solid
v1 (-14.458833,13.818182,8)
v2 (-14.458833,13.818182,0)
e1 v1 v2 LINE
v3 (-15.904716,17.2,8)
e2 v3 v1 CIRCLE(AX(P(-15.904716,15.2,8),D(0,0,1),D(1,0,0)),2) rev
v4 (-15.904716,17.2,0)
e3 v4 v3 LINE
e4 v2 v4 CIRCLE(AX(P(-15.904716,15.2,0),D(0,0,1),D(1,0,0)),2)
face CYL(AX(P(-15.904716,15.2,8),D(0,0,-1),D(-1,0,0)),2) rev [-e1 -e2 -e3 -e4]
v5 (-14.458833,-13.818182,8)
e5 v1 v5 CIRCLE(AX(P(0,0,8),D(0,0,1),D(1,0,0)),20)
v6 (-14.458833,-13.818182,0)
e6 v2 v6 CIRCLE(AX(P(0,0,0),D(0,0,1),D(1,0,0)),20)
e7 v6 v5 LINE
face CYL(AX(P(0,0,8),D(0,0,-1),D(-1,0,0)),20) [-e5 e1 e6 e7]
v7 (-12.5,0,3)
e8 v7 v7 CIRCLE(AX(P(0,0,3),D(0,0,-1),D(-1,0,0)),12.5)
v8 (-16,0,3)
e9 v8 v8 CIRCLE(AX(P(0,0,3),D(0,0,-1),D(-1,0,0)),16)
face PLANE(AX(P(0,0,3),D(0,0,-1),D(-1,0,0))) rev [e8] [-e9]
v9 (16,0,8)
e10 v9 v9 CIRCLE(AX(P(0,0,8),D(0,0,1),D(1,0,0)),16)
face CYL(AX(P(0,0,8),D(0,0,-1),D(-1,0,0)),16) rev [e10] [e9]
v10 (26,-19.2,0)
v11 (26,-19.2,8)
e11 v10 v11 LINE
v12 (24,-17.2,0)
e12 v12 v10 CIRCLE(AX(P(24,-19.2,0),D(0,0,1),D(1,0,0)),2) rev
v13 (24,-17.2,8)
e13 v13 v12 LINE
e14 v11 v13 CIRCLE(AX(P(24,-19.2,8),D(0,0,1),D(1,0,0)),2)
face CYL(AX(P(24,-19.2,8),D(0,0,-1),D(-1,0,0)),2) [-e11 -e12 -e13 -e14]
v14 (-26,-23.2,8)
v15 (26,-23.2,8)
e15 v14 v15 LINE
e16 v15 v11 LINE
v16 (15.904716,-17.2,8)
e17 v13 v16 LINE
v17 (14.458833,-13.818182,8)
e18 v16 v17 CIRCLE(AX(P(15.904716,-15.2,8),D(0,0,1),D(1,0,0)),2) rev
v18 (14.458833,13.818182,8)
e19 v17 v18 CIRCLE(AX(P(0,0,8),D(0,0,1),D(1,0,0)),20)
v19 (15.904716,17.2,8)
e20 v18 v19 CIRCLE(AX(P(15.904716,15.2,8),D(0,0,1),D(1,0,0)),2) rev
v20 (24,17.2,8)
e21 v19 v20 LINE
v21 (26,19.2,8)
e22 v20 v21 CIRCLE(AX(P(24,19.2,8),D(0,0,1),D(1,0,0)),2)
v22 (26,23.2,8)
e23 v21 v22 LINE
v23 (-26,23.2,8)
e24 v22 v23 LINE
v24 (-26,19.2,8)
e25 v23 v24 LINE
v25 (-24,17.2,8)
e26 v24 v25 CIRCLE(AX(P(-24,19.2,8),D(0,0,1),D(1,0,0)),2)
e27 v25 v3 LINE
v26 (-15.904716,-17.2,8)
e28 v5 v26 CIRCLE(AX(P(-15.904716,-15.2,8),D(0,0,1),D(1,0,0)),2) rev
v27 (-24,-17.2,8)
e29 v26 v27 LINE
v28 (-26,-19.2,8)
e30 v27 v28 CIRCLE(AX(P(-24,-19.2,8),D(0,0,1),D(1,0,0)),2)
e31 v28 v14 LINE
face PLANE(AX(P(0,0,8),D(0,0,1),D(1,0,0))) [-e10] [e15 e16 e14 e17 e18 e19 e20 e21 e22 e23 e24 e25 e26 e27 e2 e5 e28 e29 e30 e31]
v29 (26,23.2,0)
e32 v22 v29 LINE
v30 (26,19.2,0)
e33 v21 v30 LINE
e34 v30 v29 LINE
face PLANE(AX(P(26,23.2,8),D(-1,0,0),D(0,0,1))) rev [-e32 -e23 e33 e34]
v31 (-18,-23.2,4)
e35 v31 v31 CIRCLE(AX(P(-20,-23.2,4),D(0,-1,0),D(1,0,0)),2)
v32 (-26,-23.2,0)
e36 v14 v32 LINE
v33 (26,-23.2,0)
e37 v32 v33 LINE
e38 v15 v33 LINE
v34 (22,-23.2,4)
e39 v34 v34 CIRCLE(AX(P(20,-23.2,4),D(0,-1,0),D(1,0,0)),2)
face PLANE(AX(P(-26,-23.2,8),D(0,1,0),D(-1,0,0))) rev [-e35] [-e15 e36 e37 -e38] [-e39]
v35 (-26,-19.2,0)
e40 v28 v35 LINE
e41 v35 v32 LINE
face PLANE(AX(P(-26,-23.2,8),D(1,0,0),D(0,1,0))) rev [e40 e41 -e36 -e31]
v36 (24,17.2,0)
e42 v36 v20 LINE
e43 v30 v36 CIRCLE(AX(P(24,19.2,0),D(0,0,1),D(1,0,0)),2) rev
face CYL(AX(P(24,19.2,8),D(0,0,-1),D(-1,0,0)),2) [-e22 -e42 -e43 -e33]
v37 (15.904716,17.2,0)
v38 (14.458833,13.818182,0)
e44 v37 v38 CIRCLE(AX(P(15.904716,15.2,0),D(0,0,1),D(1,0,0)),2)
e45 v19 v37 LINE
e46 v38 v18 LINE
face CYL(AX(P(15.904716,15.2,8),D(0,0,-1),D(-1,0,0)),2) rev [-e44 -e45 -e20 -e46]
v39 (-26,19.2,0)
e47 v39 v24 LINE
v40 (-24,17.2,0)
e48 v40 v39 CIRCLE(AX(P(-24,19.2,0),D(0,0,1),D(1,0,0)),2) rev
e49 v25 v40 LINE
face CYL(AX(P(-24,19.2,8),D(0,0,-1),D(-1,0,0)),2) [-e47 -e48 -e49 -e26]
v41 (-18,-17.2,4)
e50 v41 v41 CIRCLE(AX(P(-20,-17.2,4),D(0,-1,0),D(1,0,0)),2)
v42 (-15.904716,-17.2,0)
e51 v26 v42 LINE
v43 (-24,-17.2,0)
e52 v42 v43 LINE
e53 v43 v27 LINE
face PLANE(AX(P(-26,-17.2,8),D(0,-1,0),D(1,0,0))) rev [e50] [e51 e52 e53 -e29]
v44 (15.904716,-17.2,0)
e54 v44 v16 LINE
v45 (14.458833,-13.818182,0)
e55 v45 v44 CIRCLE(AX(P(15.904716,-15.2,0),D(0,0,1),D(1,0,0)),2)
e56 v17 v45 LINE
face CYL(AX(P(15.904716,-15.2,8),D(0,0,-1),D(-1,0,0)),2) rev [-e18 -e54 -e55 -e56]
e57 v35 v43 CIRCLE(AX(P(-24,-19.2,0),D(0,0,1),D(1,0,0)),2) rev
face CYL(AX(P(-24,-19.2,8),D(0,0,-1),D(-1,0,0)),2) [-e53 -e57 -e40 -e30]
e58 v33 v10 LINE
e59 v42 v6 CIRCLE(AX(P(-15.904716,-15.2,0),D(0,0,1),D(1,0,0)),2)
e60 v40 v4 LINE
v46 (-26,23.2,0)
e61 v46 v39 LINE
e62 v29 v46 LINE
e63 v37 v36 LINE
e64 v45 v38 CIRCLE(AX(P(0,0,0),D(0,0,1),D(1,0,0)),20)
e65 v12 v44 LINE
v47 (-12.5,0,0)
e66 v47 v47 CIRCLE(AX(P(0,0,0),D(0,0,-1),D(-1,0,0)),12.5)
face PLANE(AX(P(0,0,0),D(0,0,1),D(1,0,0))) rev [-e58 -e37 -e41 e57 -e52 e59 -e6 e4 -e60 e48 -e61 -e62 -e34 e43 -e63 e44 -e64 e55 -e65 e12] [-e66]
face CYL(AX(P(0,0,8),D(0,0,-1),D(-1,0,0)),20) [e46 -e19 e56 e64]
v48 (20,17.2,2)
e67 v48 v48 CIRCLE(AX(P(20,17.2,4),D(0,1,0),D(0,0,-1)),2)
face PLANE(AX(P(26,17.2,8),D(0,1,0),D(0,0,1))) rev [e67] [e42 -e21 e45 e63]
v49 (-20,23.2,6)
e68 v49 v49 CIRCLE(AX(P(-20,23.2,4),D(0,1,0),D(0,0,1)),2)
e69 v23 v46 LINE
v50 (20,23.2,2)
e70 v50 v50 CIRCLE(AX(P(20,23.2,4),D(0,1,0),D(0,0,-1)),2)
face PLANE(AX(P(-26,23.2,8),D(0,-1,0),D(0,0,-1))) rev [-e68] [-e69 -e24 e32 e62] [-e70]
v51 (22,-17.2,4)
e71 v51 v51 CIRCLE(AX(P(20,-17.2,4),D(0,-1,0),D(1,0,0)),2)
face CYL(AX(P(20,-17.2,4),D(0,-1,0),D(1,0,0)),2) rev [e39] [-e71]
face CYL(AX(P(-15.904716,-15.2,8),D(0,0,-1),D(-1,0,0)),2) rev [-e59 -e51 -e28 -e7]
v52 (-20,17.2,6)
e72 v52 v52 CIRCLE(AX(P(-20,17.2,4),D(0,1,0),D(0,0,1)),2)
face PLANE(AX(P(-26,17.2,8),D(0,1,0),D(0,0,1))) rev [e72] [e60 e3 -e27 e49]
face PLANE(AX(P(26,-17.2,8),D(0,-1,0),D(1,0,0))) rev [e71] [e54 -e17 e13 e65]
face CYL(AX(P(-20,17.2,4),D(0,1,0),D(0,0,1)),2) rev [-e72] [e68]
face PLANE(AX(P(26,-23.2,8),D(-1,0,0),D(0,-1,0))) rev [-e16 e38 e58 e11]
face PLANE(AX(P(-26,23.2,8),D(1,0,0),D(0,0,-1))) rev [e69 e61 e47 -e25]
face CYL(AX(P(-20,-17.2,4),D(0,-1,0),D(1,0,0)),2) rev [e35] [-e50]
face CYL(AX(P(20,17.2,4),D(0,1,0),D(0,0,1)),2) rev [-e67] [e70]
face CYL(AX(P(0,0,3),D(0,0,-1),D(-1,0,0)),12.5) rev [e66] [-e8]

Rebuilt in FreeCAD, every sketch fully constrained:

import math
import FreeCAD as App
import Part
import Sketcher
Q = App.Units.Quantity


def edges_at(feature, points):
    """Names of the edges that pass closest to the given points."""
    edges = feature.Shape.Edges
    near = lambda p: min(range(len(edges)), key=lambda i: edges[i].distToShape(Part.Vertex(*p))[0])
    return sorted({f"Edge{near(p) + 1}" for p in points})

doc = App.newDocument("Part")
body = doc.addObject("PartDesign::Body", "Body")

# Sketch on XY plane
sketch1 = body.newObject("Sketcher::SketchObject", "Sketch")
sketch1.AttachmentSupport = (doc.getObject("XY_Plane"), [""])
sketch1.MapMode = "FlatFace"
sketch1.addGeometry(Part.LineSegment(App.Vector(26, 23, 0), App.Vector(-26, 23, 0)), False)
sketch1.addGeometry(Part.LineSegment(App.Vector(-26, 23, 0), App.Vector(-26, 17, 0)), False)
sketch1.addGeometry(Part.LineSegment(App.Vector(-26, 17, 0), App.Vector(-10, 17, 0)), False)
sketch1.addGeometry(Part.ArcOfCircle(Part.Circle(App.Vector(0, 0, 0), App.Vector(0, 0, 1), 20), math.radians(121), math.radians(239)), False)
sketch1.addGeometry(Part.LineSegment(App.Vector(-10, -17, 0), App.Vector(-26, -17, 0)), False)
sketch1.addGeometry(Part.LineSegment(App.Vector(-26, -17, 0), App.Vector(-26, -23, 0)), False)
sketch1.addGeometry(Part.LineSegment(App.Vector(-26, -23, 0), App.Vector(26, -23, 0)), False)
sketch1.addGeometry(Part.LineSegment(App.Vector(26, -23, 0), App.Vector(26, -17, 0)), False)
sketch1.addGeometry(Part.LineSegment(App.Vector(26, -17, 0), App.Vector(10, -17, 0)), False)
sketch1.addGeometry(Part.ArcOfCircle(Part.Circle(App.Vector(0, 0, 0), App.Vector(0, 0, 1), 20), math.radians(-59), math.radians(59)), False)
sketch1.addGeometry(Part.LineSegment(App.Vector(10, 17, 0), App.Vector(26, 17, 0)), False)
sketch1.addGeometry(Part.LineSegment(App.Vector(26, 17, 0), App.Vector(26, 23, 0)), False)
sketch1.addGeometry(Part.Circle(App.Vector(0, 0, 0), App.Vector(0, 0, 1), 16), False)
sketch1.addConstraint(Sketcher.Constraint("Coincident", 0, 2, 1, 1))
sketch1.addConstraint(Sketcher.Constraint("Coincident", 1, 2, 2, 1))
sketch1.addConstraint(Sketcher.Constraint("Coincident", 2, 2, 3, 1))
sketch1.addConstraint(Sketcher.Constraint("Coincident", 3, 2, 4, 1))
sketch1.addConstraint(Sketcher.Constraint("Coincident", 4, 2, 5, 1))
sketch1.addConstraint(Sketcher.Constraint("Coincident", 5, 2, 6, 1))
sketch1.addConstraint(Sketcher.Constraint("Coincident", 6, 2, 7, 1))
sketch1.addConstraint(Sketcher.Constraint("Coincident", 7, 2, 8, 1))
sketch1.addConstraint(Sketcher.Constraint("Coincident", 8, 2, 9, 1))
sketch1.addConstraint(Sketcher.Constraint("Coincident", 9, 2, 10, 1))
sketch1.addConstraint(Sketcher.Constraint("Coincident", 10, 2, 11, 1))
sketch1.addConstraint(Sketcher.Constraint("Coincident", 11, 2, 0, 1))
sketch1.addConstraint(Sketcher.Constraint("Horizontal", 0))
sketch1.addConstraint(Sketcher.Constraint("Vertical", 1))
sketch1.addConstraint(Sketcher.Constraint("Horizontal", 2))
sketch1.addConstraint(Sketcher.Constraint("Horizontal", 4))
sketch1.addConstraint(Sketcher.Constraint("Vertical", 5))
sketch1.addConstraint(Sketcher.Constraint("Horizontal", 6))
sketch1.addConstraint(Sketcher.Constraint("Vertical", 7))
sketch1.addConstraint(Sketcher.Constraint("Horizontal", 8))
sketch1.addConstraint(Sketcher.Constraint("Horizontal", 10))
sketch1.addConstraint(Sketcher.Constraint("Vertical", 11))
sketch1.addConstraint(Sketcher.Constraint("Coincident", 3, 3, -1, 1))
sketch1.addConstraint(Sketcher.Constraint("Coincident", 9, 3, -1, 1))
sketch1.addConstraint(Sketcher.Constraint("Coincident", 12, 3, -1, 1))
sketch1.addConstraint(Sketcher.Constraint("Equal", 3, 9))
sketch1.addConstraint(Sketcher.Constraint("Symmetric", 0, 2, 6, 2, -1, 1))
sketch1.addConstraint(Sketcher.Constraint("Symmetric", 4, 2, 10, 2, -1, 1))
sketch1.addConstraint(Sketcher.Constraint("Symmetric", 4, 2, 7, 2, -2))
sketch1.addConstraint(Sketcher.Constraint("Horizontal", 2, 2, 9, 2))
sketch1.addConstraint(Sketcher.Constraint("Diameter", 12, Q("32 mm")))
sketch1.addConstraint(Sketcher.Constraint("Radius", 3, Q("20 mm")))
sketch1.addConstraint(Sketcher.Constraint("DistanceX", 0, 2, 0, 1, Q("52 mm")))
sketch1.addConstraint(Sketcher.Constraint("DistanceY", 1, 2, 1, 1, Q("6 mm")))
sketch1.addConstraint(Sketcher.Constraint("DistanceY", -1, 1, 0, 2, Q("23.2 mm")))
pad1 = body.newObject("PartDesign::Pad", "Pad")
pad1.Profile = sketch1
pad1.Length = 8

# Sketch on XZ plane
sketch2 = body.newObject("Sketcher::SketchObject", "Sketch001")
sketch2.AttachmentSupport = (doc.getObject("XZ_Plane"), [""])
sketch2.MapMode = "FlatFace"
sketch2.AttachmentOffset = App.Placement(App.Vector(0, 0, -23.2), App.Rotation())
sketch2.addGeometry(Part.Circle(App.Vector(-20, 4, 0), App.Vector(0, 0, 1), 2), False)
sketch2.addGeometry(Part.Circle(App.Vector(20, 4, 0), App.Vector(0, 0, 1), 2), False)
sketch2.addConstraint(Sketcher.Constraint("Equal", 0, 1))
sketch2.addConstraint(Sketcher.Constraint("Symmetric", 0, 3, 1, 3, -2))
sketch2.addConstraint(Sketcher.Constraint("Diameter", 0, Q("4 mm")))
sketch2.addConstraint(Sketcher.Constraint("DistanceX", 0, 3, -1, 1, Q("20 mm")))
sketch2.addConstraint(Sketcher.Constraint("DistanceY", -1, 1, 0, 3, Q("4 mm")))
pocket1 = body.newObject("PartDesign::Pocket", "Pocket")
pocket1.Profile = sketch2
pocket1.Length = 6
pocket1.Reversed = True

# Sketch on XZ plane
sketch3 = body.newObject("Sketcher::SketchObject", "Sketch002")
sketch3.AttachmentSupport = (doc.getObject("XZ_Plane"), [""])
sketch3.MapMode = "FlatFace"
sketch3.AttachmentOffset = App.Placement(App.Vector(0, 0, 17.2), App.Rotation())
sketch3.addGeometry(Part.Circle(App.Vector(20, 4, 0), App.Vector(0, 0, 1), 2), False)
sketch3.addGeometry(Part.Circle(App.Vector(-20, 4, 0), App.Vector(0, 0, 1), 2), False)
sketch3.addConstraint(Sketcher.Constraint("Equal", 0, 1))
sketch3.addConstraint(Sketcher.Constraint("Symmetric", 0, 3, 1, 3, -2))
sketch3.addConstraint(Sketcher.Constraint("Diameter", 0, Q("4 mm")))
sketch3.addConstraint(Sketcher.Constraint("DistanceX", -1, 1, 0, 3, Q("20 mm")))
sketch3.addConstraint(Sketcher.Constraint("DistanceY", -1, 1, 0, 3, Q("4 mm")))
pocket2 = body.newObject("PartDesign::Pocket", "Pocket001")
pocket2.Profile = sketch3
pocket2.Length = 6
pocket2.Reversed = True
doc.recompute()

fillet = body.newObject("PartDesign::Fillet", "Fillet")
fillet.Base = (pocket2, edges_at(pocket2, [
    (-10.206, -17.2, 4),
    (-10.206, 17.2, 4),
    (10.206, 17.2, 4),
    (10.206, -17.2, 4),
]))
fillet.Radius = 2
doc.recompute()

fillet2 = body.newObject("PartDesign::Fillet", "Fillet001")
fillet2.Base = (fillet, edges_at(fillet, [
    (-26, -17.2, 4),
    (-26, 17.2, 4),
    (26, 17.2, 4),
    (26, -17.2, 4),
]))
fillet2.Radius = 2

# Sketch on XY plane
sketch4 = body.newObject("Sketcher::SketchObject", "Sketch003")
sketch4.AttachmentSupport = (doc.getObject("XY_Plane"), [""])
sketch4.MapMode = "FlatFace"
sketch4.addGeometry(Part.Circle(App.Vector(0, 0, 0), App.Vector(0, 0, 1), 16), False)
sketch4.addGeometry(Part.Circle(App.Vector(0, 0, 0), App.Vector(0, 0, 1), 12), False)
sketch4.addConstraint(Sketcher.Constraint("Coincident", 0, 3, -1, 1))
sketch4.addConstraint(Sketcher.Constraint("Coincident", 1, 3, -1, 1))
sketch4.addConstraint(Sketcher.Constraint("Diameter", 0, Q("32 mm")))
sketch4.addConstraint(Sketcher.Constraint("Diameter", 1, Q("25 mm")))
pad2 = body.newObject("PartDesign::Pad", "Pad001")
pad2.Profile = sketch4
pad2.Length = 3

doc.recompute()
